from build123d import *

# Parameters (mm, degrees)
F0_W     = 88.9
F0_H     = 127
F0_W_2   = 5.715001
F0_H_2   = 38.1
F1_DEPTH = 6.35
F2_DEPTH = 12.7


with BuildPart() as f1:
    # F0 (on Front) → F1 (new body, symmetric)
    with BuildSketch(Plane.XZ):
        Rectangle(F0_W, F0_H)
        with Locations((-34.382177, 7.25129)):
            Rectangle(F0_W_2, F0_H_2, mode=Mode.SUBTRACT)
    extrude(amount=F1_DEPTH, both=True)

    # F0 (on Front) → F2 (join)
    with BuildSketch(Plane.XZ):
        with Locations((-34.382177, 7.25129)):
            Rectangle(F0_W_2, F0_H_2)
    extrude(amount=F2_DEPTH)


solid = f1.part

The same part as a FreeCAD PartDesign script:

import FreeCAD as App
import Part
import Sketcher

V = App.Vector
Q = App.Units.Quantity

doc = App.newDocument("Part")
body = doc.addObject("PartDesign::Body", "Body")

# Sketch on XZ plane
sketch1 = body.newObject("Sketcher::SketchObject", "Sketch")
sketch1.AttachmentSupport = (doc.getObject("XZ_Plane"), [""])
sketch1.MapMode = "FlatFace"
sketch1.addGeometry(Part.LineSegment(V(-44.45, 63.5, 0), V(-44.45, -63.5, 0)), False)
sketch1.addGeometry(Part.LineSegment(V(-44.45, -63.5, 0), V(44.45, -63.5, 0)), False)
sketch1.addGeometry(Part.LineSegment(V(44.45, -63.5, 0), V(44.45, 63.5, 0)), False)
sketch1.addGeometry(Part.LineSegment(V(44.45, 63.5, 0), V(-44.45, 63.5, 0)), False)
sketch1.addGeometry(Part.LineSegment(V(-31.524677, -11.79871, 0), V(-37.239677, -11.79871, 0)), False)
sketch1.addGeometry(Part.LineSegment(V(-37.239677, -11.79871, 0), V(-37.239677, 26.30129, 0)), False)
sketch1.addGeometry(Part.LineSegment(V(-37.239677, 26.30129, 0), V(-31.524677, 26.30129, 0)), False)
sketch1.addGeometry(Part.LineSegment(V(-31.524677, 26.30129, 0), V(-31.524677, -11.79871, 0)), False)
sketch1.addConstraint(Sketcher.Constraint("Coincident", 0, 2, 1, 1))
sketch1.addConstraint(Sketcher.Constraint("Coincident", 1, 2, 2, 1))
sketch1.addConstraint(Sketcher.Constraint("Coincident", 2, 2, 3, 1))
sketch1.addConstraint(Sketcher.Constraint("Coincident", 3, 2, 0, 1))
sketch1.addConstraint(Sketcher.Constraint("Coincident", 4, 2, 5, 1))
sketch1.addConstraint(Sketcher.Constraint("Coincident", 5, 2, 6, 1))
sketch1.addConstraint(Sketcher.Constraint("Coincident", 6, 2, 7, 1))
sketch1.addConstraint(Sketcher.Constraint("Coincident", 7, 2, 4, 1))
sketch1.addConstraint(Sketcher.Constraint("Vertical", 0))
sketch1.addConstraint(Sketcher.Constraint("Horizontal", 1))
sketch1.addConstraint(Sketcher.Constraint("Vertical", 2))
sketch1.addConstraint(Sketcher.Constraint("Horizontal", 3))
sketch1.addConstraint(Sketcher.Constraint("Horizontal", 4))
sketch1.addConstraint(Sketcher.Constraint("Vertical", 5))
sketch1.addConstraint(Sketcher.Constraint("Horizontal", 6))
sketch1.addConstraint(Sketcher.Constraint("Vertical", 7))
sketch1.addConstraint(Sketcher.Constraint("Symmetric", 0, 2, 2, 2, -1, 1))
sketch1.addConstraint(Sketcher.Constraint("DistanceY", 0, 2, 0, 1, Q("5 in")))
sketch1.addConstraint(Sketcher.Constraint("DistanceX", 1, 1, 1, 2, Q("3.5 in")))
sketch1.addConstraint(Sketcher.Constraint("DistanceY", 5, 1, 5, 2, Q("1.5 in")))
sketch1.addConstraint(Sketcher.Constraint("DistanceX", 4, 2, 4, 1, Q("0.225 in")))
sketch1.addConstraint(Sketcher.Constraint("DistanceY", 4, 2, -1, 1, 11.79871))
sketch1.addConstraint(Sketcher.Constraint("DistanceX", 4, 2, -1, 1, 37.239677))
pad1 = body.newObject("PartDesign::Pad", "Pad")
pad1.Profile = sketch1
pad1.Length = Q("0.5 in")
pad1.Midplane = True

# Sketch on XZ plane
sketch2 = body.newObject("Sketcher::SketchObject", "Sketch001")
sketch2.AttachmentSupport = (doc.getObject("XZ_Plane"), [""])
sketch2.MapMode = "FlatFace"
sketch2.addGeometry(Part.LineSegment(V(-37.239677, 26.30129, 0), V(-37.239677, -11.79871, 0)), False)
sketch2.addGeometry(Part.LineSegment(V(-37.239677, -11.79871, 0), V(-31.524677, -11.79871, 0)), False)
sketch2.addGeometry(Part.LineSegment(V(-31.524677, -11.79871, 0), V(-31.524677, 26.30129, 0)), False)
sketch2.addGeometry(Part.LineSegment(V(-31.524677, 26.30129, 0), V(-37.239677, 26.30129, 0)), False)
sketch2.addConstraint(Sketcher.Constraint("Coincident", 0, 2, 1, 1))
sketch2.addConstraint(Sketcher.Constraint("Coincident", 1, 2, 2, 1))
sketch2.addConstraint(Sketcher.Constraint("Coincident", 2, 2, 3, 1))
sketch2.addConstraint(Sketcher.Constraint("Coincident", 3, 2, 0, 1))
sketch2.addConstraint(Sketcher.Constraint("Vertical", 0))
sketch2.addConstraint(Sketcher.Constraint("Horizontal", 1))
sketch2.addConstraint(Sketcher.Constraint("Vertical", 2))
sketch2.addConstraint(Sketcher.Constraint("Horizontal", 3))
sketch2.addConstraint(Sketcher.Constraint("DistanceY", 0, 2, 0, 1, Q("1.5 in")))
sketch2.addConstraint(Sketcher.Constraint("DistanceX", 1, 1, 1, 2, Q("0.225 in")))
sketch2.addConstraint(Sketcher.Constraint("DistanceY", 0, 2, -1, 1, 11.79871))
sketch2.addConstraint(Sketcher.Constraint("DistanceX", 0, 2, -1, 1, 37.239677))
pad2 = body.newObject("PartDesign::Pad", "Pad001")
pad2.Profile = sketch2
pad2.Length = Q("0.5 in")

doc.recompute()
